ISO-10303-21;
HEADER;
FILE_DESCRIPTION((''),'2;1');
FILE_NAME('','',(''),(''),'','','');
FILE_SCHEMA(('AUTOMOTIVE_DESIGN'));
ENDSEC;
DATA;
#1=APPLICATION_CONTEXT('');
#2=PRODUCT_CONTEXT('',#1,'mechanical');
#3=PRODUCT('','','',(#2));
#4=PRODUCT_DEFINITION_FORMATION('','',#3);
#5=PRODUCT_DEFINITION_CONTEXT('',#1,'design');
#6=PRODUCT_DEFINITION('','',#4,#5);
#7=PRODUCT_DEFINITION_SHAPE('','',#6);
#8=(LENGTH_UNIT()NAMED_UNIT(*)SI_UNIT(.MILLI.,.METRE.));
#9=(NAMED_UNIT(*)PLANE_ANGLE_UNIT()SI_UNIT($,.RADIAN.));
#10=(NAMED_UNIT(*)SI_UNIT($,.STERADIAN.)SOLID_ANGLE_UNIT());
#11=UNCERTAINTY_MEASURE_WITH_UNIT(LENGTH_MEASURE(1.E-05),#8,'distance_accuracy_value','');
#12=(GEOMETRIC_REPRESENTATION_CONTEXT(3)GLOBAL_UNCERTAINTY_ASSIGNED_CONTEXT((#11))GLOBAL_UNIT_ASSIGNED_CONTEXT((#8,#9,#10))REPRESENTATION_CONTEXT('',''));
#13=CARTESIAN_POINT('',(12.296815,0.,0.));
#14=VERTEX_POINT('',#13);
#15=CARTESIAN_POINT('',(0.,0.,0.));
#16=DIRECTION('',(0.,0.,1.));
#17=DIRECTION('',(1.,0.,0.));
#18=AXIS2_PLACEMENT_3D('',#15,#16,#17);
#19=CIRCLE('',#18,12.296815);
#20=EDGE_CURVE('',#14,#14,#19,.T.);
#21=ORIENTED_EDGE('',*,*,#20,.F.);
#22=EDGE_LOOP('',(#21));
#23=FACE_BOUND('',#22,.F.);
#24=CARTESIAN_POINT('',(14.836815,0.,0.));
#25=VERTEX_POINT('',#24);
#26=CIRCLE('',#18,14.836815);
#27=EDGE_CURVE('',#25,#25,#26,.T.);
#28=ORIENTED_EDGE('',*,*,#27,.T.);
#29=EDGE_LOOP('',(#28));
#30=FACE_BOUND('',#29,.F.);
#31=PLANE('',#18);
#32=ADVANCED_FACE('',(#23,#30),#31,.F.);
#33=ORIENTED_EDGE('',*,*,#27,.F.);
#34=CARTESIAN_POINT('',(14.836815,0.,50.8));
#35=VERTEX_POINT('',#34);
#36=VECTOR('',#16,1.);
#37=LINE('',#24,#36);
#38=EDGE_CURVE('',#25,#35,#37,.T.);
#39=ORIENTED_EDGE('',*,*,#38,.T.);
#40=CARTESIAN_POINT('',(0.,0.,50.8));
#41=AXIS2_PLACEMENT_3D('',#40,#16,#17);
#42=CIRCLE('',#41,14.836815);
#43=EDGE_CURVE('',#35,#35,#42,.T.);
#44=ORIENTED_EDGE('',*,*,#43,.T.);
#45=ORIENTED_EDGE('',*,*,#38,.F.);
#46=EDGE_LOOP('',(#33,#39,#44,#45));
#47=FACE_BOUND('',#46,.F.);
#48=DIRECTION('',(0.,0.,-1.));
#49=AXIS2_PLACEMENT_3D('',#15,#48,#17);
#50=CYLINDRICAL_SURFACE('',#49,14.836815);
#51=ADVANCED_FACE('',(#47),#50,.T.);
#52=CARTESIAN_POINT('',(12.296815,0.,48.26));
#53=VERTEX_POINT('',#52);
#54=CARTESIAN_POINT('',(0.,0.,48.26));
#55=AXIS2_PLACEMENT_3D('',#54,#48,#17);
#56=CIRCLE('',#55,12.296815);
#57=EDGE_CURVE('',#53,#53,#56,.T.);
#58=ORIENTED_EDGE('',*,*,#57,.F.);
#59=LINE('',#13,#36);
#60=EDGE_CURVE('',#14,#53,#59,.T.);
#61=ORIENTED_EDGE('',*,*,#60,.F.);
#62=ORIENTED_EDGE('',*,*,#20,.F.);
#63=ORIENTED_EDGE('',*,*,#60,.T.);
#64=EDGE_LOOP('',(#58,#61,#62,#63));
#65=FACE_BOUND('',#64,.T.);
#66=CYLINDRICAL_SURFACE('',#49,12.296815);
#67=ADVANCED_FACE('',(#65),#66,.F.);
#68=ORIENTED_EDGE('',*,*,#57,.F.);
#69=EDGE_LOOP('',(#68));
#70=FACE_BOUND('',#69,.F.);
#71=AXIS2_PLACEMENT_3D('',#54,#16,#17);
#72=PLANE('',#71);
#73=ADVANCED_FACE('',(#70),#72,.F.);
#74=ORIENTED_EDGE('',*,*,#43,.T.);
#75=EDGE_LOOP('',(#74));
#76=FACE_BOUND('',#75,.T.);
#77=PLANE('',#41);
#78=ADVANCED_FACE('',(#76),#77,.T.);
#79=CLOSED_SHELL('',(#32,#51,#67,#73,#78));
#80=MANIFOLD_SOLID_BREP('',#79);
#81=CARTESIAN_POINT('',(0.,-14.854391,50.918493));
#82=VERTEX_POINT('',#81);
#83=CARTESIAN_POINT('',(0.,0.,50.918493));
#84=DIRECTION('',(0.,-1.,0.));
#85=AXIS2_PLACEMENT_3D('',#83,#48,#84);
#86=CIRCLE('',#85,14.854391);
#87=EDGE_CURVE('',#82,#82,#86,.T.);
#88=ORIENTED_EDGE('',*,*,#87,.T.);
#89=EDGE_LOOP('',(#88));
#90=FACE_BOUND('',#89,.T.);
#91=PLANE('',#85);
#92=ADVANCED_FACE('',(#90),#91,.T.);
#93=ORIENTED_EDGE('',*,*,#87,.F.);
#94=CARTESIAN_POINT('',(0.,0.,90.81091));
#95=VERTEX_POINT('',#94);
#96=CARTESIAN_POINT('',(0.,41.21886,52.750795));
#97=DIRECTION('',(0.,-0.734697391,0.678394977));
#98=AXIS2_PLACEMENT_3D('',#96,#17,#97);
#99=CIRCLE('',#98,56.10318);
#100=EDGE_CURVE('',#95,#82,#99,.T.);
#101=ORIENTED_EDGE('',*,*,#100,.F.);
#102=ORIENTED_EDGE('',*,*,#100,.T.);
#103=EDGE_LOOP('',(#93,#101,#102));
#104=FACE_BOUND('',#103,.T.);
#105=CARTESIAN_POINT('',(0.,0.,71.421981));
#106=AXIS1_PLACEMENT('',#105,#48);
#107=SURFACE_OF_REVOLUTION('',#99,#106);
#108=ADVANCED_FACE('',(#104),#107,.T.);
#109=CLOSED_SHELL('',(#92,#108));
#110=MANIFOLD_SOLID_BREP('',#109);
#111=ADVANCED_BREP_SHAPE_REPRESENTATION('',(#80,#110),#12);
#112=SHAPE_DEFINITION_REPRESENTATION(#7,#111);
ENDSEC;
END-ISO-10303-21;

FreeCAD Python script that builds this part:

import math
import FreeCAD as App
import Part
import Sketcher
Q = App.Units.Quantity


def faces_at(feature, points):
    """Names of the faces that lie closest to the given points."""
    faces = feature.Shape.Faces
    near = lambda p: min(range(len(faces)), key=lambda i: faces[i].distToShape(Part.Vertex(*p))[0])
    return sorted({f"Face{near(p) + 1}" for p in points})

doc = App.newDocument("Part")
body = doc.addObject("PartDesign::Body", "Body")

# Sketch on XY plane
sketch1 = doc.addObject("Sketcher::SketchObject", "Sketch")
body.addObject(sketch1)
sketch1.AttachmentSupport = (doc.XY_Plane, [""])
sketch1.MapMode = "FlatFace"
sketch1.addGeometry(Part.Circle(App.Vector(0, 0, 0), App.Vector(0, 0, 1), 14.836815), False)
sketch1.addConstraint([
    Sketcher.Constraint("Coincident", 0, 3, -1, 1),
    Sketcher.Constraint("Diameter", 0, Q("29.67363 mm")),
])
pad1 = doc.addObject("PartDesign::Pad", "Pad")
body.addObject(pad1)
pad1.Profile = sketch1
pad1.Length = Q("2 in")
doc.recompute()

thickness = doc.addObject("PartDesign::Thickness", "Thickness")
body.addObject(thickness)
thickness.Base = (pad1, faces_at(pad1, [(0, 0, 0)]))
thickness.Value = Q("0.1 in")
thickness.Reversed = True
thickness.Join = "Arc"
body2 = doc.addObject("PartDesign::Body", "Body001")

# Sketch on YZ plane
sketch2 = doc.addObject("Sketcher::SketchObject", "Sketch001")
body2.addObject(sketch2)
sketch2.AttachmentSupport = (doc.getObject("YZ_Plane001"), [""])
sketch2.MapMode = "FlatFace"
sketch2.addGeometry([
    Part.ArcOfCircle(Part.Circle(App.Vector(41.21886, 52.750795, 0), App.Vector(0, 0, 1), 56.10318), math.radians(137.281652), math.radians(181.871584)),
    Part.LineSegment(App.Vector(-14.854391, 50.918493, 0), App.Vector(0, 50.918493, 0)),
    Part.LineSegment(App.Vector(0, 50.918493, 0), App.Vector(0, 90.81091, 0)),
], False)
sketch2.addConstraint([
    Sketcher.Constraint("Coincident", 0, 2, 1, 1),
    Sketcher.Constraint("Coincident", 1, 2, 2, 1),
    Sketcher.Constraint("Coincident", 2, 2, 0, 1),
    Sketcher.Constraint("Horizontal", 1),
    Sketcher.Constraint("Vertical", 2),
    Sketcher.Constraint("PointOnObject", 1, 2, -2),
    Sketcher.Constraint("Radius", 0, Q("56.10318 mm")),
    Sketcher.Constraint("DistanceX", 1, 1, 1, 2, Q("14.854391 mm")),
    Sketcher.Constraint("DistanceY", 0, 2, 0, 3, Q("1.832302 mm")),
    Sketcher.Constraint("DistanceY", -1, 1, 2, 2, Q("90.81091 mm")),
])
revolution = doc.addObject("PartDesign::Revolution", "Revolution")
body2.addObject(revolution)
revolution.Profile = sketch2
revolution.ReferenceAxis = (sketch2, ["V_Axis"])
revolution.Angle = 360

doc.recompute()
